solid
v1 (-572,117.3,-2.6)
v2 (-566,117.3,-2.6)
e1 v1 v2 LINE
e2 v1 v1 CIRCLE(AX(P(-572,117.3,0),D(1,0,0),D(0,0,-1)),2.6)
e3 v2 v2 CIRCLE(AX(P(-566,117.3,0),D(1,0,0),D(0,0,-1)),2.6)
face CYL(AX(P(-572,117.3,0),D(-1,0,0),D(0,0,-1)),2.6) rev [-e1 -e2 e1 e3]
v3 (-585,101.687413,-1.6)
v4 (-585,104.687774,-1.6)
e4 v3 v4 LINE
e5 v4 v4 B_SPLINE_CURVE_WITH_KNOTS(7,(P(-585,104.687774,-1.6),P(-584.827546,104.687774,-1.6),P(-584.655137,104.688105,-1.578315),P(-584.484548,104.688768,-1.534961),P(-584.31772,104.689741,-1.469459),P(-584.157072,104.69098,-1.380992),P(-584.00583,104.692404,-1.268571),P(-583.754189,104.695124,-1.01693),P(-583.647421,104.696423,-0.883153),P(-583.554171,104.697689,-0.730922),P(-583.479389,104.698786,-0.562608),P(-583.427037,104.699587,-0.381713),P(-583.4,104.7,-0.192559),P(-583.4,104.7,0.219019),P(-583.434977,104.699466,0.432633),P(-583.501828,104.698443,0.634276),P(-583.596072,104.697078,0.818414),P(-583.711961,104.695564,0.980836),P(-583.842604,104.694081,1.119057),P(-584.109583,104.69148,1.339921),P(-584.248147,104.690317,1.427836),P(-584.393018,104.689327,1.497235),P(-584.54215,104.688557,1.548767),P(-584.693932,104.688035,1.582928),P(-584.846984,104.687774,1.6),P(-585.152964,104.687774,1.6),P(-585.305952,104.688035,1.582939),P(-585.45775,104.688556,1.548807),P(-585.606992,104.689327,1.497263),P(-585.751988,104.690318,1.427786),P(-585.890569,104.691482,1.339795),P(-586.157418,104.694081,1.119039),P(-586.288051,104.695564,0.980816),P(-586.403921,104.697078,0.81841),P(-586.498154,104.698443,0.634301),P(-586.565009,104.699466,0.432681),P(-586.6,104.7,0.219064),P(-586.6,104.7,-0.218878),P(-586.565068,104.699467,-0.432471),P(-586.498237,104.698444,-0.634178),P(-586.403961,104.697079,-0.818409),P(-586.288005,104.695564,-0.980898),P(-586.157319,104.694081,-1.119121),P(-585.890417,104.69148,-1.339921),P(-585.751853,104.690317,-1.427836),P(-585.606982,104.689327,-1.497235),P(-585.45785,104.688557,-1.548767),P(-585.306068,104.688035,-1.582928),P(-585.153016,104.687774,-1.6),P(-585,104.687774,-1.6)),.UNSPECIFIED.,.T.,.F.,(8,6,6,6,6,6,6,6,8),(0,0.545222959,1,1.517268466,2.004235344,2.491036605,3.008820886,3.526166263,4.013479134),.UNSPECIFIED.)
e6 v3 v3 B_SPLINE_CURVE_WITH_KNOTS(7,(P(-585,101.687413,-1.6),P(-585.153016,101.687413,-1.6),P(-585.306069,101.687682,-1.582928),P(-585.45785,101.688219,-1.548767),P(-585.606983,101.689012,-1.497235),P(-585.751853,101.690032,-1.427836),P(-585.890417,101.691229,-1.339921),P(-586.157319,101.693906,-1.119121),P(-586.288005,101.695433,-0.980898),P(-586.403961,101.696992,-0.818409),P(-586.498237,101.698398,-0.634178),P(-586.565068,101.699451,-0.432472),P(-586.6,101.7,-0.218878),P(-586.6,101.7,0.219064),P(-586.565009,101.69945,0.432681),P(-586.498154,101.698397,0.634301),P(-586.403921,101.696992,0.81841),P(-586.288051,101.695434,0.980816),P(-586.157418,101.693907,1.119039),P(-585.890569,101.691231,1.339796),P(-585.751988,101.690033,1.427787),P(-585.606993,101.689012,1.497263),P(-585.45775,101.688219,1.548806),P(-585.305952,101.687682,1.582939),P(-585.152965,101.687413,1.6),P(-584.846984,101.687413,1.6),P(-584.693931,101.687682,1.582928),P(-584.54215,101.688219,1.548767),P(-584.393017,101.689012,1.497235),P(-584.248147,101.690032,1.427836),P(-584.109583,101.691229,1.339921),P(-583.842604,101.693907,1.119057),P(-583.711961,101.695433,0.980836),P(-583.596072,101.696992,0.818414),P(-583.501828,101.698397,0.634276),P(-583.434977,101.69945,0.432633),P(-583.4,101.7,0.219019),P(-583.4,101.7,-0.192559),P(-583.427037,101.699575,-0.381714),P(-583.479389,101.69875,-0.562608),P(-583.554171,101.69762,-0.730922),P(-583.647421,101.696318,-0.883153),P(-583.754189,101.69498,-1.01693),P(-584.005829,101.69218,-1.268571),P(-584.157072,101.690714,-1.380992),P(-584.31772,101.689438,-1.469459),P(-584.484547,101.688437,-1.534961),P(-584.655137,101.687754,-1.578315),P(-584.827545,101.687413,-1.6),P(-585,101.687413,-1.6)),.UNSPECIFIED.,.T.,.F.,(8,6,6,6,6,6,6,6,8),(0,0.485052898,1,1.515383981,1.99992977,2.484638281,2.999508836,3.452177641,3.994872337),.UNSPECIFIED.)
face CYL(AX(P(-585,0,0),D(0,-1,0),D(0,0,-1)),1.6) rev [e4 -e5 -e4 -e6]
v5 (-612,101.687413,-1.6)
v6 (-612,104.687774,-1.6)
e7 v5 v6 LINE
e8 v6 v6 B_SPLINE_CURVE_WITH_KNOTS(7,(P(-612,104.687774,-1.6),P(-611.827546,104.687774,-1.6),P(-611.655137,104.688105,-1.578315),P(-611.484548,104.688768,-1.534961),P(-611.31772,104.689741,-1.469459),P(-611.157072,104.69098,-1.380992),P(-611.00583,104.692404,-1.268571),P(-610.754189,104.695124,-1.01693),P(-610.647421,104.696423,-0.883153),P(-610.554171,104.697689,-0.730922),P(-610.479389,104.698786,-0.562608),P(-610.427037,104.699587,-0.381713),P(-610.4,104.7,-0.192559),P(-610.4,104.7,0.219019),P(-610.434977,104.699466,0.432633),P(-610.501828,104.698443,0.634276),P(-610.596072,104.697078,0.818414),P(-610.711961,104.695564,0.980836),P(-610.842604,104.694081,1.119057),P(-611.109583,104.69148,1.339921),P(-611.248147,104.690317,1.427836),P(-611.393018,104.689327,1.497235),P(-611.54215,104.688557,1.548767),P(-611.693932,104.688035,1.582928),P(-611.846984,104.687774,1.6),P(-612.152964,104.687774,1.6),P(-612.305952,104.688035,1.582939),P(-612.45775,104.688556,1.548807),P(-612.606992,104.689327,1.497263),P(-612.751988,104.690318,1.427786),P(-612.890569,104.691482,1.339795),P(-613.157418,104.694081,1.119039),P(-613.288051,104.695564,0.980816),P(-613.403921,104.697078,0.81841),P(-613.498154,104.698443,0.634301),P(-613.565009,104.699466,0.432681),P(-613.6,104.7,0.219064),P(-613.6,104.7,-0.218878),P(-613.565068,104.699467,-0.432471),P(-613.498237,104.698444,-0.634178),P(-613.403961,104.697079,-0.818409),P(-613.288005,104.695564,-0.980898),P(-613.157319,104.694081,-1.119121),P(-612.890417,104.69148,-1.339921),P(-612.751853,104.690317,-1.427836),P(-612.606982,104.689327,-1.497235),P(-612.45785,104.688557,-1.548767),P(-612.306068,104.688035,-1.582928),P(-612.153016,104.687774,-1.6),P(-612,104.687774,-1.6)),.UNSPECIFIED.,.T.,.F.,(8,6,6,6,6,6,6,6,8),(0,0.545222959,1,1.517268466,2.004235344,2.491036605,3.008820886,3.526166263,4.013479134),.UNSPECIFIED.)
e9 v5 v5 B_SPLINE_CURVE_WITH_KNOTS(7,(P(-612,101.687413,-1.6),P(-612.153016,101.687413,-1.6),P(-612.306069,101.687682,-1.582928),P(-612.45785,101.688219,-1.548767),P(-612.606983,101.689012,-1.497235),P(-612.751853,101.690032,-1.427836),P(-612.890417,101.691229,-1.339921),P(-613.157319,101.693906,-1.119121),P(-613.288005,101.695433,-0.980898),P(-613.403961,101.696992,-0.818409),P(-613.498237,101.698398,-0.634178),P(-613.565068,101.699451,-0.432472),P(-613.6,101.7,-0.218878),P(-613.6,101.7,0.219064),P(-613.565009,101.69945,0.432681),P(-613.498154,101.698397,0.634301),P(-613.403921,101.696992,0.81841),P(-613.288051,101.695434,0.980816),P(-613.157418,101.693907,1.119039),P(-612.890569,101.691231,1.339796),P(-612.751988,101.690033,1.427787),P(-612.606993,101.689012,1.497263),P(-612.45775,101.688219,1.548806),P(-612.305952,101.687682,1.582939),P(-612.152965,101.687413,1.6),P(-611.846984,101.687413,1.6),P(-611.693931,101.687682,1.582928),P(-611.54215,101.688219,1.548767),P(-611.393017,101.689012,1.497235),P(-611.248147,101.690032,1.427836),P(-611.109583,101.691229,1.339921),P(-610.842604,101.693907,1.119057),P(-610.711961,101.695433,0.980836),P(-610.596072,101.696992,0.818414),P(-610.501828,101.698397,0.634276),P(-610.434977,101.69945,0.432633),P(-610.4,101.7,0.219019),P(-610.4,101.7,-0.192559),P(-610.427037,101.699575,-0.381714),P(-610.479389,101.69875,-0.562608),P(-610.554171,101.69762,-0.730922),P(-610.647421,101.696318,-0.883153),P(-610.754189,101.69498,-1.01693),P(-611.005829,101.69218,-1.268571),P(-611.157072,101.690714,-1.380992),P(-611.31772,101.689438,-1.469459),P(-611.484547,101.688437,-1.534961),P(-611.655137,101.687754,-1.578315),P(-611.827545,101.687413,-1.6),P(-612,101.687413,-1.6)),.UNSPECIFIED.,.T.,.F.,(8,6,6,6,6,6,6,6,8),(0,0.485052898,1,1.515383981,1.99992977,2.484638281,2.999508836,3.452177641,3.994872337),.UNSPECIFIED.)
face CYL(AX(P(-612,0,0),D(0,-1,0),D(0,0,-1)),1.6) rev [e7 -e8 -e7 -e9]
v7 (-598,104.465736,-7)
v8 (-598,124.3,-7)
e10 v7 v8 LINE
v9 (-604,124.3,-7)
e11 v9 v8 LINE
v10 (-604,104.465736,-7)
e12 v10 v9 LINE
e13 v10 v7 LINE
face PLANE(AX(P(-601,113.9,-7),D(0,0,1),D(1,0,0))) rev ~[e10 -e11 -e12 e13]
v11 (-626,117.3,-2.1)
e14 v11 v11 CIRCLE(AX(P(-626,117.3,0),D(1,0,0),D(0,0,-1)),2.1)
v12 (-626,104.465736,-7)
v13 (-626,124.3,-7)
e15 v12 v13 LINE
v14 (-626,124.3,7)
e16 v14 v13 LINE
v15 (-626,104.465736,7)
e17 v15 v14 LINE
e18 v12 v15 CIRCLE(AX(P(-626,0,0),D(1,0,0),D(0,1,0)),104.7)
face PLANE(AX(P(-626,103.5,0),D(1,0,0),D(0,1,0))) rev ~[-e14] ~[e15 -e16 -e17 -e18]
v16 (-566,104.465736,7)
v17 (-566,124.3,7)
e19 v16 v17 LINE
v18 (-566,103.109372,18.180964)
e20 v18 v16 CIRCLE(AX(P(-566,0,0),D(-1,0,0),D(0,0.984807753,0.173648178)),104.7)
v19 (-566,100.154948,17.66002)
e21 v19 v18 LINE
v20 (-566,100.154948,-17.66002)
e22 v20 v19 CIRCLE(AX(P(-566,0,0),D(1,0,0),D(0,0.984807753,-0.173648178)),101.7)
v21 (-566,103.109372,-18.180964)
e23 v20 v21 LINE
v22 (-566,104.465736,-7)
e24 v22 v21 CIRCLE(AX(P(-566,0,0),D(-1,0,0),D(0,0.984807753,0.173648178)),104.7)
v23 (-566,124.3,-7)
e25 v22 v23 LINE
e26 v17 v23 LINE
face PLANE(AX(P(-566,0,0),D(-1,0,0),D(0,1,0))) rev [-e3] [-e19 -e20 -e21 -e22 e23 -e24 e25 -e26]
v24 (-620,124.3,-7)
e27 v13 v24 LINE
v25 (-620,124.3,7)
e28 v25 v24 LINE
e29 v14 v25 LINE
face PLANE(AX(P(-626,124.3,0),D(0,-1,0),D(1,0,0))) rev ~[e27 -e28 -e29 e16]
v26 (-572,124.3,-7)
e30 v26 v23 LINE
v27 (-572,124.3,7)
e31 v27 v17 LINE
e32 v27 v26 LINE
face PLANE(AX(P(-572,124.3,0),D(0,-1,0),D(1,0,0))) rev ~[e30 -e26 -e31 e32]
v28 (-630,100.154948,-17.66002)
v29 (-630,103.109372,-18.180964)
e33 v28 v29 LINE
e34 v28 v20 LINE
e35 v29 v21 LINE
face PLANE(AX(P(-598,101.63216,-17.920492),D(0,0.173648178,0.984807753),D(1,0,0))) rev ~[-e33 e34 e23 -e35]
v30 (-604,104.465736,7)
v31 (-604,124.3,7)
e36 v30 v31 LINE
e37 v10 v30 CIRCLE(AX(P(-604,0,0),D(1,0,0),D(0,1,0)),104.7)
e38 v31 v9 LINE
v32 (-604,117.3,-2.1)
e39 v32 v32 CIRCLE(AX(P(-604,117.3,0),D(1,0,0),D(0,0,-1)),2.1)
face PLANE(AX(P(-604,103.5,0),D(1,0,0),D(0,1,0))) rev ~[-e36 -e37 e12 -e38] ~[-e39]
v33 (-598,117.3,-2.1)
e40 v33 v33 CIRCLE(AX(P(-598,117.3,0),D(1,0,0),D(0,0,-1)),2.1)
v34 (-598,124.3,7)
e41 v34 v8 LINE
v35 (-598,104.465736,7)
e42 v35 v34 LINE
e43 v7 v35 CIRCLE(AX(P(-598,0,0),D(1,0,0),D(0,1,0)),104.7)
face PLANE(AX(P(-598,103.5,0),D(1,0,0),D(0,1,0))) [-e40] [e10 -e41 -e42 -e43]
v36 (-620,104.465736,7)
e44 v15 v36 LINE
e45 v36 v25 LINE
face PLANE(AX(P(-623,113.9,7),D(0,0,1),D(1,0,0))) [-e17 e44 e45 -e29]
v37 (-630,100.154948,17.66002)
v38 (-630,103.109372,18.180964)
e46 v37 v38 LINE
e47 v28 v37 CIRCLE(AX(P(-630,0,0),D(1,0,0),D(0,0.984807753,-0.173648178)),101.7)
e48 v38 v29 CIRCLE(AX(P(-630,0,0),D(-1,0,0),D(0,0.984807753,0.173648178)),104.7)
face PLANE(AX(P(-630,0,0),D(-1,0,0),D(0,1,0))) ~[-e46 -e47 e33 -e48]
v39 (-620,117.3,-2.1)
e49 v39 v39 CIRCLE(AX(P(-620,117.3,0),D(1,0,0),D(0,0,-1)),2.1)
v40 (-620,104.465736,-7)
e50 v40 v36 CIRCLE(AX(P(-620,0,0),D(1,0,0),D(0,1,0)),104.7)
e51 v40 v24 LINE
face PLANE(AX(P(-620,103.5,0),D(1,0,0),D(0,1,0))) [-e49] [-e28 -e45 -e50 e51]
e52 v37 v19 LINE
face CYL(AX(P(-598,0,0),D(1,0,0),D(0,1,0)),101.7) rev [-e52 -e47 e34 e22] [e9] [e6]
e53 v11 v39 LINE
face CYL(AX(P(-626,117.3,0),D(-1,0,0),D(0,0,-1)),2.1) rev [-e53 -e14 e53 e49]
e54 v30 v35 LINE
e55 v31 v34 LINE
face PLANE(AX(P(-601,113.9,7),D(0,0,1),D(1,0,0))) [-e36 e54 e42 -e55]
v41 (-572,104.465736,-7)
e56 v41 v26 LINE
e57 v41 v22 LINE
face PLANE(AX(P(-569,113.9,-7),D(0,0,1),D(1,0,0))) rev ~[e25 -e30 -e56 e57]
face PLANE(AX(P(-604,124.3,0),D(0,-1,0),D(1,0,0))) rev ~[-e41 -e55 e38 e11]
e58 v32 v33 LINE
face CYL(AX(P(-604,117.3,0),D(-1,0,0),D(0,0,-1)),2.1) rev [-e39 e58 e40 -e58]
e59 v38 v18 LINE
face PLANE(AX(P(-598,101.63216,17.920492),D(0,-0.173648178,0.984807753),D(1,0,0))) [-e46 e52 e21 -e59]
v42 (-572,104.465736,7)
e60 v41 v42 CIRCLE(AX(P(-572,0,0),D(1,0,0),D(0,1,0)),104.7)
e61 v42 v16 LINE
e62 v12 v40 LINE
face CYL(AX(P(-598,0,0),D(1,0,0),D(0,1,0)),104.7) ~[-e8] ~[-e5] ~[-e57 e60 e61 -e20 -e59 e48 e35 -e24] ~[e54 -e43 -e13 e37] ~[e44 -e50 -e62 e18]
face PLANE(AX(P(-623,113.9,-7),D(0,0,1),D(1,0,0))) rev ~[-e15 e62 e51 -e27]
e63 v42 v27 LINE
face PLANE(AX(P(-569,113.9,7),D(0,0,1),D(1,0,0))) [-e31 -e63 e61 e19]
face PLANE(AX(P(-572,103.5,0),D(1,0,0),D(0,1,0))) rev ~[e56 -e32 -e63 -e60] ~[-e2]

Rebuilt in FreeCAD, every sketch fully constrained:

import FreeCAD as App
import Part
import Sketcher
Q = App.Units.Quantity


def add_polygon(sketch, points):
    """Adds a closed chain of lines whose ends are joined by coincident constraints."""
    first, n = sketch.GeometryCount, len(points)
    for a, b in zip(points, points[1:] + points[:1]):
        sketch.addGeometry(Part.LineSegment(App.Vector(*a, 0), App.Vector(*b, 0)), False)
    for i in range(n):
        sketch.addConstraint(Sketcher.Constraint("Coincident", first + i, 2, first + (i + 1) % n, 1))

doc = App.newDocument("Part")
params = doc.addObject("Spreadsheet::Sheet", "Params")
for row, (alias, value) in enumerate([
    ("sketch1_width", "64 mm"),
    ("sketch1_height", "3 mm"),
    ("revolution_angle", "10 deg"),
    ("sketch2_width", "64 mm"),
    ("sketch2_height", "3 mm"),
    ("revolution2_angle", "10 deg"),
    ("sketch3_width", "6 mm"),
    ("sketch3_height", "20.8 mm"),
    ("pad1_length", "14 mm"),
    ("sketch4_width", "6 mm"),
    ("sketch4_height", "20.8 mm"),
    ("pad2_length", "14 mm"),
    ("sketch5_width", "6 mm"),
    ("sketch5_height", "20.8 mm"),
    ("pad3_length", "14 mm"),
    ("sketch6_diameter", "4.2 mm"),
    ("pocket1_length", "6 mm"),
    ("sketch7_diameter", "4.2 mm"),
    ("pocket2_length", "6 mm"),
    ("sketch8_diameter", "5.2 mm"),
    ("pocket3_length", "6 mm"),
    ("sketch9_diameter", "3.2 mm"),
    ("pocket4_length", "200 mm"),
    ("sketch10_diameter", "3.2 mm"),
    ("pocket5_length", "200 mm"),
], start=1):
    params.set(f"A{row}", alias)
    params.set(f"B{row}", "=" + value)
    params.setAlias(f"B{row}", alias)

body = doc.addObject("PartDesign::Body", "Body")

sketch1 = doc.addObject("Sketcher::SketchObject", "Sketch")
body.addObject(sketch1)
sketch1.AttachmentSupport = (doc.XY_Plane, [""])
sketch1.MapMode = "FlatFace"
add_polygon(sketch1, [(-630, 104.7), (-630, 101.7), (-566, 101.7), (-566, 104.7)])
sketch1.addConstraint([
    Sketcher.Constraint("Vertical", 0),
    Sketcher.Constraint("Horizontal", 1),
    Sketcher.Constraint("Vertical", 2),
    Sketcher.Constraint("Horizontal", 3),
    Sketcher.Constraint("DistanceX", 1, 1, 1, 2, Q("64 mm")),
    Sketcher.Constraint("DistanceY", 0, 2, 0, 1, Q("3 mm")),
    Sketcher.Constraint("DistanceX", 0, 2, -1, 1, Q("630 mm")),
    Sketcher.Constraint("DistanceY", -1, 1, 0, 2, Q("101.7 mm")),
])
sketch1.setExpression("Constraints[8]", "Params.sketch1_width")
sketch1.setExpression("Constraints[9]", "Params.sketch1_height")
revolution = doc.addObject("PartDesign::Revolution", "Revolution")
body.addObject(revolution)
revolution.Profile = sketch1
revolution.ReferenceAxis = (sketch1, ["H_Axis"])
revolution.setExpression("Angle", "Params.revolution_angle")

sketch2 = doc.addObject("Sketcher::SketchObject", "Sketch001")
body.addObject(sketch2)
sketch2.AttachmentSupport = (doc.XY_Plane, [""])
sketch2.MapMode = "FlatFace"
add_polygon(sketch2, [(-630, 104.7), (-630, 101.7), (-566, 101.7), (-566, 104.7)])
sketch2.addConstraint([
    Sketcher.Constraint("Vertical", 0),
    Sketcher.Constraint("Horizontal", 1),
    Sketcher.Constraint("Vertical", 2),
    Sketcher.Constraint("Horizontal", 3),
    Sketcher.Constraint("DistanceX", 1, 1, 1, 2, Q("64 mm")),
    Sketcher.Constraint("DistanceY", 0, 2, 0, 1, Q("3 mm")),
    Sketcher.Constraint("DistanceX", 0, 2, -1, 1, Q("630 mm")),
    Sketcher.Constraint("DistanceY", -1, 1, 0, 2, Q("101.7 mm")),
])
sketch2.setExpression("Constraints[8]", "Params.sketch2_width")
sketch2.setExpression("Constraints[9]", "Params.sketch2_height")
revolution2 = doc.addObject("PartDesign::Revolution", "Revolution001")
body.addObject(revolution2)
revolution2.Profile = sketch2
revolution2.ReferenceAxis = (sketch2, ["H_Axis"])
revolution2.setExpression("Angle", "Params.revolution2_angle")
revolution2.Reversed = True

sketch3 = doc.addObject("Sketcher::SketchObject", "Sketch002")
body.addObject(sketch3)
sketch3.AttachmentSupport = (doc.XY_Plane, [""])
sketch3.MapMode = "FlatFace"
add_polygon(sketch3, [(-626, 124.3), (-626, 103.5), (-620, 103.5), (-620, 124.3)])
sketch3.addConstraint([
    Sketcher.Constraint("Vertical", 0),
    Sketcher.Constraint("Horizontal", 1),
    Sketcher.Constraint("Vertical", 2),
    Sketcher.Constraint("Horizontal", 3),
    Sketcher.Constraint("DistanceX", 1, 1, 1, 2, Q("6 mm")),
    Sketcher.Constraint("DistanceY", 0, 2, 0, 1, Q("20.8 mm")),
    Sketcher.Constraint("DistanceX", 0, 2, -1, 1, Q("626 mm")),
    Sketcher.Constraint("DistanceY", -1, 1, 0, 2, Q("103.5 mm")),
])
sketch3.setExpression("Constraints[8]", "Params.sketch3_width")
sketch3.setExpression("Constraints[9]", "Params.sketch3_height")
pad1 = doc.addObject("PartDesign::Pad", "Pad")
body.addObject(pad1)
pad1.Profile = sketch3
pad1.setExpression("Length", "Params.pad1_length")
pad1.Midplane = True

sketch4 = doc.addObject("Sketcher::SketchObject", "Sketch003")
body.addObject(sketch4)
sketch4.AttachmentSupport = (doc.XY_Plane, [""])
sketch4.MapMode = "FlatFace"
add_polygon(sketch4, [(-604, 124.3), (-604, 103.5), (-598, 103.5), (-598, 124.3)])
sketch4.addConstraint([
    Sketcher.Constraint("Vertical", 0),
    Sketcher.Constraint("Horizontal", 1),
    Sketcher.Constraint("Vertical", 2),
    Sketcher.Constraint("Horizontal", 3),
    Sketcher.Constraint("DistanceX", 1, 1, 1, 2, Q("6 mm")),
    Sketcher.Constraint("DistanceY", 0, 2, 0, 1, Q("20.8 mm")),
    Sketcher.Constraint("DistanceX", 0, 2, -1, 1, Q("604 mm")),
    Sketcher.Constraint("DistanceY", -1, 1, 0, 2, Q("103.5 mm")),
])
sketch4.setExpression("Constraints[8]", "Params.sketch4_width")
sketch4.setExpression("Constraints[9]", "Params.sketch4_height")
pad2 = doc.addObject("PartDesign::Pad", "Pad001")
body.addObject(pad2)
pad2.Profile = sketch4
pad2.setExpression("Length", "Params.pad2_length")
pad2.Midplane = True

sketch5 = doc.addObject("Sketcher::SketchObject", "Sketch004")
body.addObject(sketch5)
sketch5.AttachmentSupport = (doc.XY_Plane, [""])
sketch5.MapMode = "FlatFace"
add_polygon(sketch5, [(-572, 124.3), (-572, 103.5), (-566, 103.5), (-566, 124.3)])
sketch5.addConstraint([
    Sketcher.Constraint("Vertical", 0),
    Sketcher.Constraint("Horizontal", 1),
    Sketcher.Constraint("Vertical", 2),
    Sketcher.Constraint("Horizontal", 3),
    Sketcher.Constraint("DistanceX", 1, 1, 1, 2, Q("6 mm")),
    Sketcher.Constraint("DistanceY", 0, 2, 0, 1, Q("20.8 mm")),
    Sketcher.Constraint("DistanceX", 0, 2, -1, 1, Q("572 mm")),
    Sketcher.Constraint("DistanceY", -1, 1, 0, 2, Q("103.5 mm")),
])
sketch5.setExpression("Constraints[8]", "Params.sketch5_width")
sketch5.setExpression("Constraints[9]", "Params.sketch5_height")
pad3 = doc.addObject("PartDesign::Pad", "Pad002")
body.addObject(pad3)
pad3.Profile = sketch5
pad3.setExpression("Length", "Params.pad3_length")
pad3.Midplane = True

sketch6 = doc.addObject("Sketcher::SketchObject", "Sketch005")
body.addObject(sketch6)
sketch6.AttachmentSupport = (doc.YZ_Plane, [""])
sketch6.MapMode = "FlatFace"
sketch6.AttachmentOffset = App.Placement(App.Vector(0, 0, -626), App.Rotation())
sketch6.addGeometry(Part.Circle(App.Vector(117.3, 0, 0), App.Vector(0, 0, 1), 2.1), False)
sketch6.addConstraint([
    Sketcher.Constraint("PointOnObject", 0, 3, -1),
    Sketcher.Constraint("Diameter", 0, Q("4.2 mm")),
    Sketcher.Constraint("DistanceX", -1, 1, 0, 3, Q("117.3 mm")),
])
sketch6.setExpression("Constraints[1]", "Params.sketch6_diameter")
pocket1 = doc.addObject("PartDesign::Pocket", "Pocket")
body.addObject(pocket1)
pocket1.Profile = sketch6
pocket1.setExpression("Length", "Params.pocket1_length")
pocket1.Reversed = True

sketch7 = doc.addObject("Sketcher::SketchObject", "Sketch006")
body.addObject(sketch7)
sketch7.AttachmentSupport = (doc.YZ_Plane, [""])
sketch7.MapMode = "FlatFace"
sketch7.AttachmentOffset = App.Placement(App.Vector(0, 0, -604), App.Rotation())
sketch7.addGeometry(Part.Circle(App.Vector(117.3, 0, 0), App.Vector(0, 0, 1), 2.1), False)
sketch7.addConstraint([
    Sketcher.Constraint("PointOnObject", 0, 3, -1),
    Sketcher.Constraint("Diameter", 0, Q("4.2 mm")),
    Sketcher.Constraint("DistanceX", -1, 1, 0, 3, Q("117.3 mm")),
])
sketch7.setExpression("Constraints[1]", "Params.sketch7_diameter")
pocket2 = doc.addObject("PartDesign::Pocket", "Pocket001")
body.addObject(pocket2)
pocket2.Profile = sketch7
pocket2.setExpression("Length", "Params.pocket2_length")
pocket2.Reversed = True

sketch8 = doc.addObject("Sketcher::SketchObject", "Sketch007")
body.addObject(sketch8)
sketch8.AttachmentSupport = (doc.YZ_Plane, [""])
sketch8.MapMode = "FlatFace"
sketch8.AttachmentOffset = App.Placement(App.Vector(0, 0, -572), App.Rotation())
sketch8.addGeometry(Part.Circle(App.Vector(117.3, 0, 0), App.Vector(0, 0, 1), 2.6), False)
sketch8.addConstraint([
    Sketcher.Constraint("PointOnObject", 0, 3, -1),
    Sketcher.Constraint("Diameter", 0, Q("5.2 mm")),
    Sketcher.Constraint("DistanceX", -1, 1, 0, 3, Q("117.3 mm")),
])
sketch8.setExpression("Constraints[1]", "Params.sketch8_diameter")
pocket3 = doc.addObject("PartDesign::Pocket", "Pocket002")
body.addObject(pocket3)
pocket3.Profile = sketch8
pocket3.setExpression("Length", "Params.pocket3_length")
pocket3.Reversed = True

sketch9 = doc.addObject("Sketcher::SketchObject", "Sketch008")
body.addObject(sketch9)
sketch9.AttachmentSupport = (doc.XZ_Plane, [""])
sketch9.MapMode = "FlatFace"
sketch9.addGeometry(Part.Circle(App.Vector(-585, 0, 0), App.Vector(0, 0, 1), 1.6), False)
sketch9.addConstraint([
    Sketcher.Constraint("PointOnObject", 0, 3, -1),
    Sketcher.Constraint("Diameter", 0, Q("3.2 mm")),
    Sketcher.Constraint("DistanceX", 0, 3, -1, 1, Q("585 mm")),
])
sketch9.setExpression("Constraints[1]", "Params.sketch9_diameter")
pocket4 = doc.addObject("PartDesign::Pocket", "Pocket003")
body.addObject(pocket4)
pocket4.Profile = sketch9
pocket4.setExpression("Length", "Params.pocket4_length")

sketch10 = doc.addObject("Sketcher::SketchObject", "Sketch009")
body.addObject(sketch10)
sketch10.AttachmentSupport = (doc.XZ_Plane, [""])
sketch10.MapMode = "FlatFace"
sketch10.addGeometry(Part.Circle(App.Vector(-612, 0, 0), App.Vector(0, 0, 1), 1.6), False)
sketch10.addConstraint([
    Sketcher.Constraint("PointOnObject", 0, 3, -1),
    Sketcher.Constraint("Diameter", 0, Q("3.2 mm")),
    Sketcher.Constraint("DistanceX", 0, 3, -1, 1, Q("612 mm")),
])
sketch10.setExpression("Constraints[1]", "Params.sketch10_diameter")
pocket5 = doc.addObject("PartDesign::Pocket", "Pocket004")
body.addObject(pocket5)
pocket5.Profile = sketch10
pocket5.setExpression("Length", "Params.pocket5_length")

doc.recompute()
